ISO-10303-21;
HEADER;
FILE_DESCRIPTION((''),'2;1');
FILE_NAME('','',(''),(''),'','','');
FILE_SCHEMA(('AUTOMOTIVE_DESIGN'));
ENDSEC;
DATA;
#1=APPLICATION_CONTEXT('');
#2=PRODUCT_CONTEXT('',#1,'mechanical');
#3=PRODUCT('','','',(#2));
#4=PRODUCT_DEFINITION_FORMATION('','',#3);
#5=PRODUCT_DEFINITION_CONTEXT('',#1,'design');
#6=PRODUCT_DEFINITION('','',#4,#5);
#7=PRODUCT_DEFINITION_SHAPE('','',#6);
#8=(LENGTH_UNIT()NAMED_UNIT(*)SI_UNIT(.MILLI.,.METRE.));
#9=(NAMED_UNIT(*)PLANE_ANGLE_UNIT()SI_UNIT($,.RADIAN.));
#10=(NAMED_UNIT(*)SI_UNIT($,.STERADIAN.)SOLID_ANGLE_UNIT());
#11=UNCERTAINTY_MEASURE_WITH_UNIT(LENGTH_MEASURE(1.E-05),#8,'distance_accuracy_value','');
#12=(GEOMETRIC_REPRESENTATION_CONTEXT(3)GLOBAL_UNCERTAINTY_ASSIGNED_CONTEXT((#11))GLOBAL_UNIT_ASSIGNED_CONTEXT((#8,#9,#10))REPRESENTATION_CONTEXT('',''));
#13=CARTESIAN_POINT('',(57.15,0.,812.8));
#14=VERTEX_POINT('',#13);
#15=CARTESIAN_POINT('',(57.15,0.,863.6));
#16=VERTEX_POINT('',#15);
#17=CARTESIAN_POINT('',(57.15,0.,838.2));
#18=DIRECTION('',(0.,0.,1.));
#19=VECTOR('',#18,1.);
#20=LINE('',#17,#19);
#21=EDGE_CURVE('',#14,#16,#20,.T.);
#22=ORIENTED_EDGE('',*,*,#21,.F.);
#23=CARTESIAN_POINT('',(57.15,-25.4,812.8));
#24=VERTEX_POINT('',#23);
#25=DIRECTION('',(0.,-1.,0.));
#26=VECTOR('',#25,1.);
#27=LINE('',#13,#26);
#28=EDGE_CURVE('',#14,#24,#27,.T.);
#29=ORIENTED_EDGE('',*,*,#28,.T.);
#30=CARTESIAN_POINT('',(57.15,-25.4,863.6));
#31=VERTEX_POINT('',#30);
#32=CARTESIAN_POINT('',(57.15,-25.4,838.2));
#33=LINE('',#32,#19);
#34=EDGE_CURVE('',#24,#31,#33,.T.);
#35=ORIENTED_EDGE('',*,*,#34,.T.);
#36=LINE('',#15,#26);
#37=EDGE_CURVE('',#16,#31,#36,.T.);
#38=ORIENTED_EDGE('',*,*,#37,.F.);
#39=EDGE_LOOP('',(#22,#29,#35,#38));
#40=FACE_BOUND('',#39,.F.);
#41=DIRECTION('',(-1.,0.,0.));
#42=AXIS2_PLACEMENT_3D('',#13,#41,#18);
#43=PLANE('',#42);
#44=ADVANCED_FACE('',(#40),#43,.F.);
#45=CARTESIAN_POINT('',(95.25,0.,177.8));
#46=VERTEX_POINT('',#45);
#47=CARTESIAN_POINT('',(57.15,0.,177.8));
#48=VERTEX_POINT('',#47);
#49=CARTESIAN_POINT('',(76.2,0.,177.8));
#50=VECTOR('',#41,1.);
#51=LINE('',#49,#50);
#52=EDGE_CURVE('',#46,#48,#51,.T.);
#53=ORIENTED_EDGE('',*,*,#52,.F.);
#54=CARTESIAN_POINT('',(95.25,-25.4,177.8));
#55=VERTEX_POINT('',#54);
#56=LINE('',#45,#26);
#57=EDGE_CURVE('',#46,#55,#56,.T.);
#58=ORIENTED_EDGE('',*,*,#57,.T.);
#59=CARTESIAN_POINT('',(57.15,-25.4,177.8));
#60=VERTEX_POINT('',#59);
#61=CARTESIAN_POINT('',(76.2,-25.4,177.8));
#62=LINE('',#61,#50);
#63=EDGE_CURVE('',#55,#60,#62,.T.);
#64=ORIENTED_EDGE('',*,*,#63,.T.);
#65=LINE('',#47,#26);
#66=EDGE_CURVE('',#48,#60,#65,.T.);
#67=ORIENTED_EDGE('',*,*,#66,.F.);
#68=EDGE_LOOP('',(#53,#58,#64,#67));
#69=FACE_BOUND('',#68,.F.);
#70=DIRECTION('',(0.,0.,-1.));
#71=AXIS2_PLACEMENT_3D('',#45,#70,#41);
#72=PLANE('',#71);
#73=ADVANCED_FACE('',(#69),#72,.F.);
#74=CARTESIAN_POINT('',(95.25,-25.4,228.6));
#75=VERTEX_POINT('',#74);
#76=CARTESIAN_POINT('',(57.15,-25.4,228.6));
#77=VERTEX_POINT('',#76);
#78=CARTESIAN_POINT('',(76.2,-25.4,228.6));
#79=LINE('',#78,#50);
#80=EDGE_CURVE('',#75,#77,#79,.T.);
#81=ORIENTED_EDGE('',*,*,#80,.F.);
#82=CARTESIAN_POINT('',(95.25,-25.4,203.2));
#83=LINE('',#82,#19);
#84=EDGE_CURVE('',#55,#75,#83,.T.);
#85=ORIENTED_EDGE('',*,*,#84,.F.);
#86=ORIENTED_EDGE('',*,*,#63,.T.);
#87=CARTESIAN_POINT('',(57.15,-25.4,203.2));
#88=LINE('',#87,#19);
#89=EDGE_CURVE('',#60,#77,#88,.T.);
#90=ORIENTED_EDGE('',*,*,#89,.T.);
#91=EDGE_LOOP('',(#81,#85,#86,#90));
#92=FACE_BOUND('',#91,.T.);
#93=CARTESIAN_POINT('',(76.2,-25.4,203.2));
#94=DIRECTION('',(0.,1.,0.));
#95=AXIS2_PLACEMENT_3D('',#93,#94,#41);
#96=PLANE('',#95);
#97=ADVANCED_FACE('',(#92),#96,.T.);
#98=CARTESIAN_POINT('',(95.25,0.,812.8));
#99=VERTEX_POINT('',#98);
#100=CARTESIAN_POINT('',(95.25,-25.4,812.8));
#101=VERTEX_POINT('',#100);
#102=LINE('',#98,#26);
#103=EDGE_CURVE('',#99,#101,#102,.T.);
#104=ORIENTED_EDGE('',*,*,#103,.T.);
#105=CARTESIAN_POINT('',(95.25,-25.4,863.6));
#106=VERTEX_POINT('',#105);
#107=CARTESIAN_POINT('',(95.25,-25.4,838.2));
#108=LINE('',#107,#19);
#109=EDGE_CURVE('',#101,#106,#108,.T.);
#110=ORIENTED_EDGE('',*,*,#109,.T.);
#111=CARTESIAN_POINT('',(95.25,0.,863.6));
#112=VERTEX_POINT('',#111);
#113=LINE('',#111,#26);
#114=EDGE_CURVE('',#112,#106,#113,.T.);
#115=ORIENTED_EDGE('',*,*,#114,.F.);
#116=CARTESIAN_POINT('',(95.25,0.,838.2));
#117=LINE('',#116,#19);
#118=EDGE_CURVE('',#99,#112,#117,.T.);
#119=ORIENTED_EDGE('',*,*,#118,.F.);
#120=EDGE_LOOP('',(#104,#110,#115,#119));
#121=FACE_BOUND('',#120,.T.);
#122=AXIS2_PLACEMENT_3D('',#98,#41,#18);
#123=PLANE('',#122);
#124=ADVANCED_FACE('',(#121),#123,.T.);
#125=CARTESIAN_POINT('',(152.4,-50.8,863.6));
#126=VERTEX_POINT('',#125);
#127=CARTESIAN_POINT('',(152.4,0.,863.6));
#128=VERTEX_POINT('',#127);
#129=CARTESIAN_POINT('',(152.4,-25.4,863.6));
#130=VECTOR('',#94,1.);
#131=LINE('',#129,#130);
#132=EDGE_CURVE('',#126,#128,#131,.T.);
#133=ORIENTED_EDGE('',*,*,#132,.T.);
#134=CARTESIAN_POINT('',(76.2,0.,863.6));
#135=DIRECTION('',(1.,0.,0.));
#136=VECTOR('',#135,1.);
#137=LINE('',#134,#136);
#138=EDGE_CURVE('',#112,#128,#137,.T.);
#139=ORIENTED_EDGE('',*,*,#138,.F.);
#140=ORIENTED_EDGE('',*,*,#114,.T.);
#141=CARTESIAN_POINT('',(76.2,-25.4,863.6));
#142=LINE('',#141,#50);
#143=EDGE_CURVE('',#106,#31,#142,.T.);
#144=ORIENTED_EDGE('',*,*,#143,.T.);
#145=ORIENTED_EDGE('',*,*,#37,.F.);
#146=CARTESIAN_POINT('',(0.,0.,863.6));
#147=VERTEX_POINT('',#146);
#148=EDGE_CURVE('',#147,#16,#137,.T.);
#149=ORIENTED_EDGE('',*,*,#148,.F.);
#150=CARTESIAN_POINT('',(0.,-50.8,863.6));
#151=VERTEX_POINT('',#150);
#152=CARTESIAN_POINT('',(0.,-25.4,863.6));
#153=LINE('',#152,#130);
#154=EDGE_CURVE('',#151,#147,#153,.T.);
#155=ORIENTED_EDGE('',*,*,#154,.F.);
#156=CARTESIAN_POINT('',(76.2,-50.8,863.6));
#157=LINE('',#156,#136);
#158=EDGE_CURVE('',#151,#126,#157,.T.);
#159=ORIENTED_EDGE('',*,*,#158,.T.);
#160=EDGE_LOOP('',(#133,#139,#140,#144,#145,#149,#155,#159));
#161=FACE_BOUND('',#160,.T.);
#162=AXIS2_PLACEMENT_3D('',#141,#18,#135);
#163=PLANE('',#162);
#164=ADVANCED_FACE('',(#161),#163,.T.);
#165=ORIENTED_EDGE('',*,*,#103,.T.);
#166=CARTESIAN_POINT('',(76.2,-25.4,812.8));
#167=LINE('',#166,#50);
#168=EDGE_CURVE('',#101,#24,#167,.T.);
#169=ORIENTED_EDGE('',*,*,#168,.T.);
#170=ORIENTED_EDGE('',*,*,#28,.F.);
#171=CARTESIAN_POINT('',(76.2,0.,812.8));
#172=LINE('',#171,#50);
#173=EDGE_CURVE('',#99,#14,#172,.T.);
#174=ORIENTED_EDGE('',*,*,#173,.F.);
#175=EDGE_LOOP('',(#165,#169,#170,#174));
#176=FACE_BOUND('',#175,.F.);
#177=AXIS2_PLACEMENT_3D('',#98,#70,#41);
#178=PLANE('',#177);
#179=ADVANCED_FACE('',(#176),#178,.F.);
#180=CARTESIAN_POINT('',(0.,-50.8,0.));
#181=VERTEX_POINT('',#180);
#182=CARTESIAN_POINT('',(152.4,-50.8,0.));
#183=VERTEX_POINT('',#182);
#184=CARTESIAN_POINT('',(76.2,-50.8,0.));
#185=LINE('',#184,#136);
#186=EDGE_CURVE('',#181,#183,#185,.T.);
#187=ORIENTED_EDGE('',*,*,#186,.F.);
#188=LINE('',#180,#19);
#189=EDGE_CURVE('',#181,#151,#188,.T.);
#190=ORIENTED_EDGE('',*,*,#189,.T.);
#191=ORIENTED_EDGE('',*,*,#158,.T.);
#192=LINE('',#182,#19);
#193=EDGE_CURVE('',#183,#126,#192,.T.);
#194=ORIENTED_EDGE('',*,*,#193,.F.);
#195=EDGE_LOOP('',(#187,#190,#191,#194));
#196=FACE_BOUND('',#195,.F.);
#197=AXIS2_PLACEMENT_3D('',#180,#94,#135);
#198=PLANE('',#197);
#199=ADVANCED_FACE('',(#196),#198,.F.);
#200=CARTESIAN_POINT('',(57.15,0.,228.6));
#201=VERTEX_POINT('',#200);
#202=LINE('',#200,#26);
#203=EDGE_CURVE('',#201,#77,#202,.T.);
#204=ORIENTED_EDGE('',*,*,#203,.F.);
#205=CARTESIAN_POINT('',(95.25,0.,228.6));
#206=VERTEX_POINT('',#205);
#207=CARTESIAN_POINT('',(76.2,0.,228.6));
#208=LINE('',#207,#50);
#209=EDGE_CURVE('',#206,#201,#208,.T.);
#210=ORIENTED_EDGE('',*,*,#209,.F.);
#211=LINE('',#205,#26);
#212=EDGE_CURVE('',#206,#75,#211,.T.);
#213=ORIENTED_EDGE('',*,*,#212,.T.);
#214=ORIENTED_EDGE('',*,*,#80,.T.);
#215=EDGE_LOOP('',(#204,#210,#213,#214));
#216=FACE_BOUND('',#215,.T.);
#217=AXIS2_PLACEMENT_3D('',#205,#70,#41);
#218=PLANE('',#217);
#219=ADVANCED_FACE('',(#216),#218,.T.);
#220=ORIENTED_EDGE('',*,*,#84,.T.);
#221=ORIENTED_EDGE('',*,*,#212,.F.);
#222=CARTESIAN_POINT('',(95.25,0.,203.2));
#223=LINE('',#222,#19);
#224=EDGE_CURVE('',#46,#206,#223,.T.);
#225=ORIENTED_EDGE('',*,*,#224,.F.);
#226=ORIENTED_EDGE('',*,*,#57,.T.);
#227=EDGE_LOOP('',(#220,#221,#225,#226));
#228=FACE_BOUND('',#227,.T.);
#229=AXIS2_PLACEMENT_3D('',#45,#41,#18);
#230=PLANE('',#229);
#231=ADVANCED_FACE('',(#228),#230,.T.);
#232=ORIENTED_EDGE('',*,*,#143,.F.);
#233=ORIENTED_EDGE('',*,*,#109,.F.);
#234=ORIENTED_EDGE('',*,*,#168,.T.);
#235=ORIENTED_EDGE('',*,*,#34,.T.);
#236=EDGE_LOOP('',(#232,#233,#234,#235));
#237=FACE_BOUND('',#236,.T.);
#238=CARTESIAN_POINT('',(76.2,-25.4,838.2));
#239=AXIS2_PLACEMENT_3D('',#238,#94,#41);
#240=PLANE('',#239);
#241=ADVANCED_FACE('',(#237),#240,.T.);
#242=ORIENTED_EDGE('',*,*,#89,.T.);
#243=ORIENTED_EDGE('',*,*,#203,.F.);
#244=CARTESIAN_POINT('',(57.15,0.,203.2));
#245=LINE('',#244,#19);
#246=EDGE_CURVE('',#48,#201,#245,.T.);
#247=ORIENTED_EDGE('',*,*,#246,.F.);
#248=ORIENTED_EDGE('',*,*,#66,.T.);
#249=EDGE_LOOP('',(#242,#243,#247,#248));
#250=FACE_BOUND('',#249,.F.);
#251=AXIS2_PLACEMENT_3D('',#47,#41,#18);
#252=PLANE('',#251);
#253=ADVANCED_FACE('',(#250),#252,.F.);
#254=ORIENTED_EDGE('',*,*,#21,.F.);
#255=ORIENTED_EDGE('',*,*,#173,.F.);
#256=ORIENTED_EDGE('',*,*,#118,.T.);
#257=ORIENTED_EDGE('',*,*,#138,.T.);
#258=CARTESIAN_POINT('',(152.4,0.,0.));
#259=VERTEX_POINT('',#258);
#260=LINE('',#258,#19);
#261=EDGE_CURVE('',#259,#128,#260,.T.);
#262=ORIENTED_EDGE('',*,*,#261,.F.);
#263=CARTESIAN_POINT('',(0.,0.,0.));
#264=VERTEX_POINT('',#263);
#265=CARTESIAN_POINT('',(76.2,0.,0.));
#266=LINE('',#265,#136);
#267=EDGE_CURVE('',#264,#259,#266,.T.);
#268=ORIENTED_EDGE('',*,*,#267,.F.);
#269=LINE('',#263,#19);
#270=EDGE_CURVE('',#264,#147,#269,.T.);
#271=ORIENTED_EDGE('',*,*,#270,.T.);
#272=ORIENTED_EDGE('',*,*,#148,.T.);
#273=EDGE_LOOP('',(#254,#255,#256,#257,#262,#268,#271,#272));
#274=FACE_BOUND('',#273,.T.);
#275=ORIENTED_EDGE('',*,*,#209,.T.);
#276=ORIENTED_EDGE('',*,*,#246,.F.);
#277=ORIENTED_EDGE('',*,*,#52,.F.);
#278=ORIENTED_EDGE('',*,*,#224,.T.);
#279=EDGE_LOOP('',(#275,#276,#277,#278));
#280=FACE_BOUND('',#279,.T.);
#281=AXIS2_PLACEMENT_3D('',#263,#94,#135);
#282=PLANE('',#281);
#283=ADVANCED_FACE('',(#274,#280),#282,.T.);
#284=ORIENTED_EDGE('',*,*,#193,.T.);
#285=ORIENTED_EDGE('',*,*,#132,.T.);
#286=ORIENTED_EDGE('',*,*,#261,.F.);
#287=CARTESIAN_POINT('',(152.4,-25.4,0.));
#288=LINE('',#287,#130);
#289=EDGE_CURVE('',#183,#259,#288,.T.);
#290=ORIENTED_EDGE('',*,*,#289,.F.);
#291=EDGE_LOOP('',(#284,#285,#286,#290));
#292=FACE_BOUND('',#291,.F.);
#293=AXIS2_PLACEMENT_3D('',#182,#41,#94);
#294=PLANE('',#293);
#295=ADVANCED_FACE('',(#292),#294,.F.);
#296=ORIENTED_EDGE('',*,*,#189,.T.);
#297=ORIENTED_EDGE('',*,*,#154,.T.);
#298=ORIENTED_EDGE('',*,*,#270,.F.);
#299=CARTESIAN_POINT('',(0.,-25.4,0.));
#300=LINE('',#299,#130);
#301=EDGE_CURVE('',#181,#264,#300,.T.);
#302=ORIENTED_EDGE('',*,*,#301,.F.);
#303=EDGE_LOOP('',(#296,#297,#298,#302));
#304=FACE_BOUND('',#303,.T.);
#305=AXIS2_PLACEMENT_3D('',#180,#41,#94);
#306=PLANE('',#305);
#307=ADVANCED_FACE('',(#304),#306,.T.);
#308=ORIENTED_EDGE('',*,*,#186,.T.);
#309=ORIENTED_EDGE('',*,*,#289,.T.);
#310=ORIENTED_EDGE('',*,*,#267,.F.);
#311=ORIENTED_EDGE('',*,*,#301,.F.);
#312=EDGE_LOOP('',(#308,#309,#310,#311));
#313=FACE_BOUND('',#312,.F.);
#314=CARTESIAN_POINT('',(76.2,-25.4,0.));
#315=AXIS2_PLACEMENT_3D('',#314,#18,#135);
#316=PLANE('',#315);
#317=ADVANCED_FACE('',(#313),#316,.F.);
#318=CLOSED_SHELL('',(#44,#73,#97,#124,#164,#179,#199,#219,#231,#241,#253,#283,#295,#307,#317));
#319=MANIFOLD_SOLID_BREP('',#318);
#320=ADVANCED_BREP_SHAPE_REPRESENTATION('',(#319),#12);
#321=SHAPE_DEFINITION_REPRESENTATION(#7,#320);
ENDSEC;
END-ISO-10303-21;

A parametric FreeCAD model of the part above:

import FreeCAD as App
import Part
import Sketcher
from FreeCAD import Vector
Q = App.Units.Quantity


def add_polygon(sketch, points):
    """Adds a closed chain of lines whose ends are joined by coincident constraints."""
    first, n = sketch.GeometryCount, len(points)
    for a, b in zip(points, points[1:] + points[:1]):
        sketch.addGeometry(Part.LineSegment(App.Vector(*a, 0), App.Vector(*b, 0)), False)
    for i in range(n):
        sketch.addConstraint(Sketcher.Constraint("Coincident", first + i, 2, first + (i + 1) % n, 1))

doc = App.newDocument("Part")
body = doc.addObject("PartDesign::Body", "Body")

# Sketch on XY plane
sketch1 = body.newObject("Sketcher::SketchObject", "Sketch")
sketch1.AttachmentSupport = (doc.getObject("XY_Plane"), [""])
sketch1.MapMode = "FlatFace"
add_polygon(sketch1, [(0, 0), (0, -51), (152, -51), (152, 0)])  # lines 0-3
sketch1.addConstraint(Sketcher.Constraint("Vertical", 0))
sketch1.addConstraint(Sketcher.Constraint("Horizontal", 1))
sketch1.addConstraint(Sketcher.Constraint("Vertical", 2))
sketch1.addConstraint(Sketcher.Constraint("Horizontal", 3))
sketch1.addConstraint(Sketcher.Constraint("Coincident", 3, 2, -1, 1))
sketch1.addConstraint(Sketcher.Constraint("DistanceX", 1, 1, 1, 2, Q("6 in")))
sketch1.addConstraint(Sketcher.Constraint("DistanceY", 0, 2, 0, 1, Q("2 in")))
pad1 = body.newObject("PartDesign::Pad", "Pad")
pad1.Profile = sketch1
pad1.Length = Q("34 in")

# Sketch on XZ plane
sketch2 = body.newObject("Sketcher::SketchObject", "Sketch001")
sketch2.AttachmentSupport = (doc.getObject("XZ_Plane"), [""])
sketch2.MapMode = "FlatFace"
add_polygon(sketch2, [(95, 864), (95, 813), (57, 813), (57, 864)])  # lines 0-3
sketch2.addConstraint(Sketcher.Constraint("Vertical", 0))
sketch2.addConstraint(Sketcher.Constraint("Horizontal", 1))
sketch2.addConstraint(Sketcher.Constraint("Vertical", 2))
sketch2.addConstraint(Sketcher.Constraint("Horizontal", 3))
sketch2.addConstraint(Sketcher.Constraint("DistanceY", 0, 2, 0, 1, Q("2 in")))
sketch2.addConstraint(Sketcher.Constraint("DistanceX", 1, 2, 1, 1, Q("1.5 in")))
sketch2.addConstraint(Sketcher.Constraint("DistanceY", -1, 1, 0, 2, Q("32 in")))
sketch2.addConstraint(Sketcher.Constraint("DistanceX", -1, 1, 0, 2, Q("3.75 in")))
pocket1 = body.newObject("PartDesign::Pocket", "Pocket")
pocket1.Profile = sketch2
pocket1.Length = Q("1 in")
pocket1.Reversed = True

# Sketch on XZ plane
sketch3 = body.newObject("Sketcher::SketchObject", "Sketch002")
sketch3.AttachmentSupport = (doc.getObject("XZ_Plane"), [""])
sketch3.MapMode = "FlatFace"
add_polygon(sketch3, [(95, 229), (95, 178), (57, 178), (57, 229)])  # lines 0-3
sketch3.addConstraint(Sketcher.Constraint("Vertical", 0))
sketch3.addConstraint(Sketcher.Constraint("Horizontal", 1))
sketch3.addConstraint(Sketcher.Constraint("Vertical", 2))
sketch3.addConstraint(Sketcher.Constraint("Horizontal", 3))
sketch3.addConstraint(Sketcher.Constraint("DistanceY", 0, 2, 0, 1, Q("2 in")))
sketch3.addConstraint(Sketcher.Constraint("DistanceX", 1, 2, 1, 1, Q("1.5 in")))
sketch3.addConstraint(Sketcher.Constraint("DistanceY", -1, 1, 0, 2, Q("7 in")))
sketch3.addConstraint(Sketcher.Constraint("DistanceX", -1, 1, 0, 2, Q("3.75 in")))
pocket2 = body.newObject("PartDesign::Pocket", "Pocket001")
pocket2.Profile = sketch3
pocket2.Length = Q("1 in")
pocket2.Reversed = True

doc.recompute()
